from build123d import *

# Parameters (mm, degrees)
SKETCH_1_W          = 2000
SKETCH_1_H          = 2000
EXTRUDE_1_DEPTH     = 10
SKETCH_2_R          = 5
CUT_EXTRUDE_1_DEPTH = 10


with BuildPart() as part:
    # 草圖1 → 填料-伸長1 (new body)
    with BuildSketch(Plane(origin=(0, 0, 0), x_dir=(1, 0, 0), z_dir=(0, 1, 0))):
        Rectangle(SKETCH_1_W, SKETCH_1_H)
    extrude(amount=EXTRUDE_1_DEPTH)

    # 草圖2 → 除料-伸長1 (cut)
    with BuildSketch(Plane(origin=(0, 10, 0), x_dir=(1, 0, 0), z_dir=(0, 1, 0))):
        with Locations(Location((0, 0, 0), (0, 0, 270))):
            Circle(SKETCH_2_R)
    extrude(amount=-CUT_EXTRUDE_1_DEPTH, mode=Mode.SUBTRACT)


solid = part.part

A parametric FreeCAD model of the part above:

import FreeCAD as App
import Part
import Sketcher

V = App.Vector


def add_polygon(sketch, points):
    """Adds a closed chain of lines whose ends are joined by coincident constraints."""
    first, n = sketch.GeometryCount, len(points)
    for a, b in zip(points, points[1:] + points[:1]):
        sketch.addGeometry(Part.LineSegment(App.Vector(*a, 0), App.Vector(*b, 0)), False)
    for i in range(n):
        sketch.addConstraint(Sketcher.Constraint("Coincident", first + i, 2, first + (i + 1) % n, 1))

doc = App.newDocument("Part")
params = doc.addObject("Spreadsheet::Sheet", "Params")
for row, (alias, value) in enumerate([
    ("sketch1_width", "2000 mm"),
    ("pad1_length", "10 mm"),
    ("sketch2_diameter", "10 mm"),
    ("pocket1_length", "10 mm"),
], start=1):
    params.set(f"A{row}", alias)
    params.set(f"B{row}", "=" + value)
    params.setAlias(f"B{row}", alias)

body = doc.addObject("PartDesign::Body", "Body")

sketch1 = body.newObject("Sketcher::SketchObject", "Sketch")
sketch1.AttachmentSupport = (doc.getObject("XZ_Plane"), [""])
sketch1.MapMode = "FlatFace"
add_polygon(sketch1, [(-1000, -1000), (-1000, 1000), (1000, 1000), (1000, -1000)])
sketch1.addConstraint([
    Sketcher.Constraint("Vertical", 0),
    Sketcher.Constraint("Horizontal", 1),
    Sketcher.Constraint("Vertical", 2),
    Sketcher.Constraint("Horizontal", 3),
    Sketcher.Constraint("Symmetric", 0, 2, 2, 2, -1, 1),
    Sketcher.Constraint("Equal", 3, 0),
    Sketcher.Constraint("DistanceX", 1, 1, 1, 2, 2000.0),
])
sketch1.setExpression("Constraints[10]", "Params.sketch1_width")
pad1 = body.newObject("PartDesign::Pad", "Pad")
pad1.Profile = sketch1
pad1.setExpression("Length", "Params.pad1_length")
pad1.Reversed = True

sketch2 = body.newObject("Sketcher::SketchObject", "Sketch001")
sketch2.AttachmentSupport = (doc.getObject("XZ_Plane"), [""])
sketch2.MapMode = "FlatFace"
sketch2.AttachmentOffset = App.Placement(V(0, 0, -10), App.Rotation())
sketch2.addGeometry(Part.Circle(V(0, 0, 0), V(0, 0, 1), 5), False)
sketch2.addConstraint([
    Sketcher.Constraint("Coincident", 0, 3, -1, 1),
    Sketcher.Constraint("Diameter", 0, 10.0),
])
sketch2.setExpression("Constraints[1]", "Params.sketch2_diameter")
pocket1 = body.newObject("PartDesign::Pocket", "Pocket")
pocket1.Profile = sketch2
pocket1.setExpression("Length", "Params.pocket1_length")
pocket1.Reversed = True

doc.recompute()
